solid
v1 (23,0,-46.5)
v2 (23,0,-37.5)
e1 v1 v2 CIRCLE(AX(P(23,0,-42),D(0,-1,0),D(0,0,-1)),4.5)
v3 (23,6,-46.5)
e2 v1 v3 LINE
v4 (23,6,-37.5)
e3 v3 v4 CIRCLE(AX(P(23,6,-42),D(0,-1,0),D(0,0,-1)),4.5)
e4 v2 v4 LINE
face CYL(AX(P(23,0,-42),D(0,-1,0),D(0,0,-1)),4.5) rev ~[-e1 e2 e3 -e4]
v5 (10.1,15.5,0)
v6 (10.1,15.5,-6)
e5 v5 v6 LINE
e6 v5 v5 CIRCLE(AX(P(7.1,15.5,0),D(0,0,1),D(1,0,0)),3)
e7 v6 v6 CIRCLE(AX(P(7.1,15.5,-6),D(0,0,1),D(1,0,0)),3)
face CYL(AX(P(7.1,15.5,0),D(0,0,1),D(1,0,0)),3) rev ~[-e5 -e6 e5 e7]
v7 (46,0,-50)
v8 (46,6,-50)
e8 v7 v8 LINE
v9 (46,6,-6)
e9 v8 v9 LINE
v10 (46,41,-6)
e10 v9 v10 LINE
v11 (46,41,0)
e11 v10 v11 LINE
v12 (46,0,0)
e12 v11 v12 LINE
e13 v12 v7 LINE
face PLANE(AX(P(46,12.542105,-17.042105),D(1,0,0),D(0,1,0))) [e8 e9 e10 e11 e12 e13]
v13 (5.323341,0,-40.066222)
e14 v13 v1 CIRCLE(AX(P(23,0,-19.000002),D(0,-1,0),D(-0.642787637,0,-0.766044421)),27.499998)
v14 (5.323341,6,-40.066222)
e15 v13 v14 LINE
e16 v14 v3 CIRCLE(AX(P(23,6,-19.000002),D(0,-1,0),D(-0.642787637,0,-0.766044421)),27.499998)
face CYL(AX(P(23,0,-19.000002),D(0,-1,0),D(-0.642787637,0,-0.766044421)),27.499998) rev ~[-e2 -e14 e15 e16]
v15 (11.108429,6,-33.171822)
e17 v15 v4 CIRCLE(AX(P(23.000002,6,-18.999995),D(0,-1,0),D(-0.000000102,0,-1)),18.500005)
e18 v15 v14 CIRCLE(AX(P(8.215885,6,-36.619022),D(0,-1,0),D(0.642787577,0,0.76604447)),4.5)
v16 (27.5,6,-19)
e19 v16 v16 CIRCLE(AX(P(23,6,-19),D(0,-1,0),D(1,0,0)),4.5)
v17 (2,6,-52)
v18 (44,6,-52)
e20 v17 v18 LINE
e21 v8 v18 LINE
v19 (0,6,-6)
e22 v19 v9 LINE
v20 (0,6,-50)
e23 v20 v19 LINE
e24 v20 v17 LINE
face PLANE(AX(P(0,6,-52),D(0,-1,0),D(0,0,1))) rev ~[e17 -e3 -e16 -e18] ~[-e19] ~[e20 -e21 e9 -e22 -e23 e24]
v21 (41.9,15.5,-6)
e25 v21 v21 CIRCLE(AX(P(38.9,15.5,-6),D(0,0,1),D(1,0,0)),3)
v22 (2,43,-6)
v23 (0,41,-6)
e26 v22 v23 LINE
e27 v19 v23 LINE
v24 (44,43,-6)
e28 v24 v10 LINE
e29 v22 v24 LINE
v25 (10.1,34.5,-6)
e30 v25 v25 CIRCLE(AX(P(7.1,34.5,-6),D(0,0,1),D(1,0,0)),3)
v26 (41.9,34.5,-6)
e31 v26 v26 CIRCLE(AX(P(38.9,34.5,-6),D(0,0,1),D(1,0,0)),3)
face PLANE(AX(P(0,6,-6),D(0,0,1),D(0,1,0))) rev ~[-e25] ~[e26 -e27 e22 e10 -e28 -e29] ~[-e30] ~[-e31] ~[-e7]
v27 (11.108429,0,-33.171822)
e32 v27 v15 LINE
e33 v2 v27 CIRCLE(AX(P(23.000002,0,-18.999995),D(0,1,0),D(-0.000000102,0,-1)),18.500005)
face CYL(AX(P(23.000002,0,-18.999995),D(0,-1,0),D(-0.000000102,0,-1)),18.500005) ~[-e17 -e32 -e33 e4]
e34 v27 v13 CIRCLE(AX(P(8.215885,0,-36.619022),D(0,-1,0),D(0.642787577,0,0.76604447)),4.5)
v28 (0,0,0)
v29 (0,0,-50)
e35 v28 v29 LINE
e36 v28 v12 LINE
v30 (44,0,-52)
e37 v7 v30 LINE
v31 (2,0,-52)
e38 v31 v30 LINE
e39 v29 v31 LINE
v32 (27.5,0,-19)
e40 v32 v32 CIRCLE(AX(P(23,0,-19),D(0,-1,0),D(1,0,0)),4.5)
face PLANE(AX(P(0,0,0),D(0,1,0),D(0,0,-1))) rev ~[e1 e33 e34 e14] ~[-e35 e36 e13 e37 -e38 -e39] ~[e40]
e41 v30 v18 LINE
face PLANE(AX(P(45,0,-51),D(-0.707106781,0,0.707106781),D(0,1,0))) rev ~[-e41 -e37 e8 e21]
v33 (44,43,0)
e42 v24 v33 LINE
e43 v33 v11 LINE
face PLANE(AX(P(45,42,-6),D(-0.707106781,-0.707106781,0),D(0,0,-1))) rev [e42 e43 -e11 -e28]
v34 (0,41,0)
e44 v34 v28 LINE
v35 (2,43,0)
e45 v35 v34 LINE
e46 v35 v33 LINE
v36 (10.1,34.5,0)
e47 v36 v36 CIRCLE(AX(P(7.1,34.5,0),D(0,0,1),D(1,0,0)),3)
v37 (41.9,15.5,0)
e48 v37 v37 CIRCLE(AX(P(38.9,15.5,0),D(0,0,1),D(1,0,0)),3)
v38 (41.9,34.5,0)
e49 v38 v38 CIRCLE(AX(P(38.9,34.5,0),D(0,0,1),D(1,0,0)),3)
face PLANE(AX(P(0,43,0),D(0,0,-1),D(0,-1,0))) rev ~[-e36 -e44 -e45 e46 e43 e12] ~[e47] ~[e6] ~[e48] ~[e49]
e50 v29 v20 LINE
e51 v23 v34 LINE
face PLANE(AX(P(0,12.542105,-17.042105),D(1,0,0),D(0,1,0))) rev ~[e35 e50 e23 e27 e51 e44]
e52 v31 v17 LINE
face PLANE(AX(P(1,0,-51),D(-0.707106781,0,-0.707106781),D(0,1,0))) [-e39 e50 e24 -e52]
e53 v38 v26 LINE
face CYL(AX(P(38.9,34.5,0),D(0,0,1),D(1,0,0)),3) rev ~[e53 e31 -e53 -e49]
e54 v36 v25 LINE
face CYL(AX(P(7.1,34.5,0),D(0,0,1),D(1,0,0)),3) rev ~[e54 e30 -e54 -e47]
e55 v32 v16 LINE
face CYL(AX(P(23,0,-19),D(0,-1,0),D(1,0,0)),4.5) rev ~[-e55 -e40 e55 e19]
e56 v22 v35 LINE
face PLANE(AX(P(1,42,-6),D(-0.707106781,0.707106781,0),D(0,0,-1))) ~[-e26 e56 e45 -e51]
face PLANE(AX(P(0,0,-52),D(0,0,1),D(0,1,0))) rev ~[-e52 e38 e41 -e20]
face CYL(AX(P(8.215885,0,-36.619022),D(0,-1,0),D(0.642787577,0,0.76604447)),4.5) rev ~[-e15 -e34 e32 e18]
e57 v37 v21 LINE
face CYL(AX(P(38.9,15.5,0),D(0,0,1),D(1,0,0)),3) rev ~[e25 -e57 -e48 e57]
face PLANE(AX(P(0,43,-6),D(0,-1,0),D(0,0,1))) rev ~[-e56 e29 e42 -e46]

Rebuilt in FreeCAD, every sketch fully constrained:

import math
import FreeCAD as App
import Part
import Sketcher
Q = App.Units.Quantity


def edges_at(feature, points):
    """Names of the edges that pass closest to the given points."""
    edges = feature.Shape.Edges
    near = lambda p: min(range(len(edges)), key=lambda i: edges[i].distToShape(Part.Vertex(*p))[0])
    return sorted({f"Edge{near(p) + 1}" for p in points})


def add_polygon(sketch, points):
    """Adds a closed chain of lines whose ends are joined by coincident constraints."""
    first, n = sketch.GeometryCount, len(points)
    for a, b in zip(points, points[1:] + points[:1]):
        sketch.addGeometry(Part.LineSegment(App.Vector(*a, 0), App.Vector(*b, 0)), False)
    for i in range(n):
        sketch.addConstraint(Sketcher.Constraint("Coincident", first + i, 2, first + (i + 1) % n, 1))

doc = App.newDocument("Part")
params = doc.addObject("Spreadsheet::Sheet", "Params")
for row, (alias, value) in enumerate([
    ("sketch1_width", "43 mm"),
    ("sketch1_width2", "6 mm"),
    ("sketch1_height", "52 mm"),
    ("pad1_length", "46 mm"),
    ("sketch2_diameter", "6 mm"),
    ("pocket1_length", "25 mm"),
    ("sketch3_diameter", "9 mm"),
    ("sketch3_radius", "27.499998 mm"),
    ("pocket2_length", "25 mm"),
    ("chamfer_size", "2 mm"),
], start=1):
    params.set(f"A{row}", alias)
    params.set(f"B{row}", "=" + value)
    params.setAlias(f"B{row}", alias)

body = doc.addObject("PartDesign::Body", "Body")

# Sketch on YZ plane
sketch1 = body.newObject("Sketcher::SketchObject", "Sketch")
sketch1.AttachmentSupport = (doc.getObject("YZ_Plane"), [""])
sketch1.MapMode = "FlatFace"
add_polygon(sketch1, [(43, 0), (0, 0), (0, -52), (6, -52), (6, -6), (43, -6)])  # lines 0-5
sketch1.addConstraint(Sketcher.Constraint("Horizontal", 0))
sketch1.addConstraint(Sketcher.Constraint("Vertical", 1))
sketch1.addConstraint(Sketcher.Constraint("Horizontal", 2))
sketch1.addConstraint(Sketcher.Constraint("Vertical", 3))
sketch1.addConstraint(Sketcher.Constraint("Horizontal", 4))
sketch1.addConstraint(Sketcher.Constraint("Vertical", 5))
sketch1.addConstraint(Sketcher.Constraint("Coincident", 0, 2, -1, 1))
sketch1.addConstraint(Sketcher.Constraint("Equal", 2, 5))
sketch1.addConstraint(Sketcher.Constraint("DistanceX", 0, 2, 0, 1, Q("43 mm")))
sketch1.addConstraint(Sketcher.Constraint("DistanceX", 2, 1, 2, 2, Q("6 mm")))
sketch1.addConstraint(Sketcher.Constraint("DistanceY", 1, 2, 1, 1, Q("52 mm")))
sketch1.setExpression("Constraints[14]", "Params.sketch1_width")
sketch1.setExpression("Constraints[15]", "Params.sketch1_width2")
sketch1.setExpression("Constraints[16]", "Params.sketch1_height")
pad1 = body.newObject("PartDesign::Pad", "Pad")
pad1.Profile = sketch1
pad1.setExpression("Length", "Params.pad1_length")

# Sketch on XY plane
sketch2 = body.newObject("Sketcher::SketchObject", "Sketch001")
sketch2.AttachmentSupport = (doc.getObject("XY_Plane"), [""])
sketch2.MapMode = "FlatFace"
sketch2.addGeometry(Part.Circle(App.Vector(38.9, 15.5, 0), App.Vector(0, 0, 1), 3), False)
sketch2.addGeometry(Part.Circle(App.Vector(38.9, 34.5, 0), App.Vector(0, 0, 1), 3), False)
sketch2.addGeometry(Part.Circle(App.Vector(7.1, 15.5, 0), App.Vector(0, 0, 1), 3), False)
sketch2.addGeometry(Part.Circle(App.Vector(7.1, 34.5, 0), App.Vector(0, 0, 1), 3), False)
sketch2.addConstraint(Sketcher.Constraint("Equal", 0, 1))
sketch2.addConstraint(Sketcher.Constraint("Equal", 1, 2))
sketch2.addConstraint(Sketcher.Constraint("Equal", 2, 3))
sketch2.addConstraint(Sketcher.Constraint("Horizontal", 0, 3, 2, 3))
sketch2.addConstraint(Sketcher.Constraint("Horizontal", 1, 3, 3, 3))
sketch2.addConstraint(Sketcher.Constraint("Vertical", 0, 3, 1, 3))
sketch2.addConstraint(Sketcher.Constraint("Vertical", 2, 3, 3, 3))
sketch2.addConstraint(Sketcher.Constraint("Diameter", 0, Q("6 mm")))
sketch2.addConstraint(Sketcher.Constraint("DistanceY", 0, 3, 1, 3, Q("19 mm")))
sketch2.addConstraint(Sketcher.Constraint("DistanceX", -1, 1, 0, 3, Q("38.9 mm")))
sketch2.addConstraint(Sketcher.Constraint("DistanceY", -1, 1, 0, 3, Q("15.5 mm")))
sketch2.addConstraint(Sketcher.Constraint("DistanceX", -1, 1, 2, 3, Q("7.1 mm")))
sketch2.setExpression("Constraints[7]", "Params.sketch2_diameter")
pocket1 = body.newObject("PartDesign::Pocket", "Pocket")
pocket1.Profile = sketch2
pocket1.setExpression("Length", "Params.pocket1_length")

# Sketch on XZ plane
sketch3 = body.newObject("Sketcher::SketchObject", "Sketch002")
sketch3.AttachmentSupport = (doc.getObject("XZ_Plane"), [""])
sketch3.MapMode = "FlatFace"
sketch3.addGeometry(Part.Circle(App.Vector(23, -19, 0), App.Vector(0, 0, 1), 4.5), False)
sketch3.addGeometry(Part.ArcOfCircle(Part.Circle(App.Vector(23, -19, 0), App.Vector(0, 0, 1), 18.5), math.radians(-130), math.radians(-90)), False)
sketch3.addGeometry(Part.ArcOfCircle(Part.Circle(App.Vector(8.2, -36.6, 0), App.Vector(0, 0, 1), 4.5), math.radians(50), math.radians(230)), False)
sketch3.addGeometry(Part.ArcOfCircle(Part.Circle(App.Vector(23, -19, 0), App.Vector(0, 0, 1), 27.5), math.radians(-130), math.radians(-90)), False)
sketch3.addGeometry(Part.ArcOfCircle(Part.Circle(App.Vector(23, -42, 0), App.Vector(0, 0, 1), 4.5), math.radians(-90), math.radians(90)), False)
sketch3.addConstraint(Sketcher.Constraint("Tangent", 1, 1, 2, 1))
sketch3.addConstraint(Sketcher.Constraint("Tangent", 2, 2, 3, 1))
sketch3.addConstraint(Sketcher.Constraint("Tangent", 3, 2, 4, 1))
sketch3.addConstraint(Sketcher.Constraint("Tangent", 4, 2, 1, 2))
sketch3.addConstraint(Sketcher.Constraint("Coincident", 1, 3, 0, 3))
sketch3.addConstraint(Sketcher.Constraint("Coincident", 3, 3, 0, 3))
sketch3.addConstraint(Sketcher.Constraint("Equal", 0, 2))
sketch3.addConstraint(Sketcher.Constraint("Vertical", 3, 3, 4, 3))
sketch3.addConstraint(Sketcher.Constraint("Diameter", 0, Q("9 mm")))
sketch3.addConstraint(Sketcher.Constraint("Radius", 3, Q("27.499998 mm")))
sketch3.addConstraint(Sketcher.Constraint("DistanceX", -1, 1, 0, 3, Q("23 mm")))
sketch3.addConstraint(Sketcher.Constraint("DistanceY", 0, 3, -1, 1, Q("19 mm")))
sketch3.addConstraint(Sketcher.Constraint("DistanceY", 2, 3, 1, 1, Q("3.4472 mm")))
sketch3.setExpression("Constraints[8]", "Params.sketch3_diameter")
sketch3.setExpression("Constraints[9]", "Params.sketch3_radius")
pocket2 = body.newObject("PartDesign::Pocket", "Pocket001")
pocket2.Profile = sketch3
pocket2.setExpression("Length", "Params.pocket2_length")
doc.recompute()

chamfer = body.newObject("PartDesign::Chamfer", "Chamfer")
chamfer.Base = (pocket2, edges_at(pocket2, [
    (0, 43, -3),
    (46, 43, -3),
    (46, 3, -52),
    (0, 3, -52),
]))
chamfer.setExpression("Size", "Params.chamfer_size")

doc.recompute()
